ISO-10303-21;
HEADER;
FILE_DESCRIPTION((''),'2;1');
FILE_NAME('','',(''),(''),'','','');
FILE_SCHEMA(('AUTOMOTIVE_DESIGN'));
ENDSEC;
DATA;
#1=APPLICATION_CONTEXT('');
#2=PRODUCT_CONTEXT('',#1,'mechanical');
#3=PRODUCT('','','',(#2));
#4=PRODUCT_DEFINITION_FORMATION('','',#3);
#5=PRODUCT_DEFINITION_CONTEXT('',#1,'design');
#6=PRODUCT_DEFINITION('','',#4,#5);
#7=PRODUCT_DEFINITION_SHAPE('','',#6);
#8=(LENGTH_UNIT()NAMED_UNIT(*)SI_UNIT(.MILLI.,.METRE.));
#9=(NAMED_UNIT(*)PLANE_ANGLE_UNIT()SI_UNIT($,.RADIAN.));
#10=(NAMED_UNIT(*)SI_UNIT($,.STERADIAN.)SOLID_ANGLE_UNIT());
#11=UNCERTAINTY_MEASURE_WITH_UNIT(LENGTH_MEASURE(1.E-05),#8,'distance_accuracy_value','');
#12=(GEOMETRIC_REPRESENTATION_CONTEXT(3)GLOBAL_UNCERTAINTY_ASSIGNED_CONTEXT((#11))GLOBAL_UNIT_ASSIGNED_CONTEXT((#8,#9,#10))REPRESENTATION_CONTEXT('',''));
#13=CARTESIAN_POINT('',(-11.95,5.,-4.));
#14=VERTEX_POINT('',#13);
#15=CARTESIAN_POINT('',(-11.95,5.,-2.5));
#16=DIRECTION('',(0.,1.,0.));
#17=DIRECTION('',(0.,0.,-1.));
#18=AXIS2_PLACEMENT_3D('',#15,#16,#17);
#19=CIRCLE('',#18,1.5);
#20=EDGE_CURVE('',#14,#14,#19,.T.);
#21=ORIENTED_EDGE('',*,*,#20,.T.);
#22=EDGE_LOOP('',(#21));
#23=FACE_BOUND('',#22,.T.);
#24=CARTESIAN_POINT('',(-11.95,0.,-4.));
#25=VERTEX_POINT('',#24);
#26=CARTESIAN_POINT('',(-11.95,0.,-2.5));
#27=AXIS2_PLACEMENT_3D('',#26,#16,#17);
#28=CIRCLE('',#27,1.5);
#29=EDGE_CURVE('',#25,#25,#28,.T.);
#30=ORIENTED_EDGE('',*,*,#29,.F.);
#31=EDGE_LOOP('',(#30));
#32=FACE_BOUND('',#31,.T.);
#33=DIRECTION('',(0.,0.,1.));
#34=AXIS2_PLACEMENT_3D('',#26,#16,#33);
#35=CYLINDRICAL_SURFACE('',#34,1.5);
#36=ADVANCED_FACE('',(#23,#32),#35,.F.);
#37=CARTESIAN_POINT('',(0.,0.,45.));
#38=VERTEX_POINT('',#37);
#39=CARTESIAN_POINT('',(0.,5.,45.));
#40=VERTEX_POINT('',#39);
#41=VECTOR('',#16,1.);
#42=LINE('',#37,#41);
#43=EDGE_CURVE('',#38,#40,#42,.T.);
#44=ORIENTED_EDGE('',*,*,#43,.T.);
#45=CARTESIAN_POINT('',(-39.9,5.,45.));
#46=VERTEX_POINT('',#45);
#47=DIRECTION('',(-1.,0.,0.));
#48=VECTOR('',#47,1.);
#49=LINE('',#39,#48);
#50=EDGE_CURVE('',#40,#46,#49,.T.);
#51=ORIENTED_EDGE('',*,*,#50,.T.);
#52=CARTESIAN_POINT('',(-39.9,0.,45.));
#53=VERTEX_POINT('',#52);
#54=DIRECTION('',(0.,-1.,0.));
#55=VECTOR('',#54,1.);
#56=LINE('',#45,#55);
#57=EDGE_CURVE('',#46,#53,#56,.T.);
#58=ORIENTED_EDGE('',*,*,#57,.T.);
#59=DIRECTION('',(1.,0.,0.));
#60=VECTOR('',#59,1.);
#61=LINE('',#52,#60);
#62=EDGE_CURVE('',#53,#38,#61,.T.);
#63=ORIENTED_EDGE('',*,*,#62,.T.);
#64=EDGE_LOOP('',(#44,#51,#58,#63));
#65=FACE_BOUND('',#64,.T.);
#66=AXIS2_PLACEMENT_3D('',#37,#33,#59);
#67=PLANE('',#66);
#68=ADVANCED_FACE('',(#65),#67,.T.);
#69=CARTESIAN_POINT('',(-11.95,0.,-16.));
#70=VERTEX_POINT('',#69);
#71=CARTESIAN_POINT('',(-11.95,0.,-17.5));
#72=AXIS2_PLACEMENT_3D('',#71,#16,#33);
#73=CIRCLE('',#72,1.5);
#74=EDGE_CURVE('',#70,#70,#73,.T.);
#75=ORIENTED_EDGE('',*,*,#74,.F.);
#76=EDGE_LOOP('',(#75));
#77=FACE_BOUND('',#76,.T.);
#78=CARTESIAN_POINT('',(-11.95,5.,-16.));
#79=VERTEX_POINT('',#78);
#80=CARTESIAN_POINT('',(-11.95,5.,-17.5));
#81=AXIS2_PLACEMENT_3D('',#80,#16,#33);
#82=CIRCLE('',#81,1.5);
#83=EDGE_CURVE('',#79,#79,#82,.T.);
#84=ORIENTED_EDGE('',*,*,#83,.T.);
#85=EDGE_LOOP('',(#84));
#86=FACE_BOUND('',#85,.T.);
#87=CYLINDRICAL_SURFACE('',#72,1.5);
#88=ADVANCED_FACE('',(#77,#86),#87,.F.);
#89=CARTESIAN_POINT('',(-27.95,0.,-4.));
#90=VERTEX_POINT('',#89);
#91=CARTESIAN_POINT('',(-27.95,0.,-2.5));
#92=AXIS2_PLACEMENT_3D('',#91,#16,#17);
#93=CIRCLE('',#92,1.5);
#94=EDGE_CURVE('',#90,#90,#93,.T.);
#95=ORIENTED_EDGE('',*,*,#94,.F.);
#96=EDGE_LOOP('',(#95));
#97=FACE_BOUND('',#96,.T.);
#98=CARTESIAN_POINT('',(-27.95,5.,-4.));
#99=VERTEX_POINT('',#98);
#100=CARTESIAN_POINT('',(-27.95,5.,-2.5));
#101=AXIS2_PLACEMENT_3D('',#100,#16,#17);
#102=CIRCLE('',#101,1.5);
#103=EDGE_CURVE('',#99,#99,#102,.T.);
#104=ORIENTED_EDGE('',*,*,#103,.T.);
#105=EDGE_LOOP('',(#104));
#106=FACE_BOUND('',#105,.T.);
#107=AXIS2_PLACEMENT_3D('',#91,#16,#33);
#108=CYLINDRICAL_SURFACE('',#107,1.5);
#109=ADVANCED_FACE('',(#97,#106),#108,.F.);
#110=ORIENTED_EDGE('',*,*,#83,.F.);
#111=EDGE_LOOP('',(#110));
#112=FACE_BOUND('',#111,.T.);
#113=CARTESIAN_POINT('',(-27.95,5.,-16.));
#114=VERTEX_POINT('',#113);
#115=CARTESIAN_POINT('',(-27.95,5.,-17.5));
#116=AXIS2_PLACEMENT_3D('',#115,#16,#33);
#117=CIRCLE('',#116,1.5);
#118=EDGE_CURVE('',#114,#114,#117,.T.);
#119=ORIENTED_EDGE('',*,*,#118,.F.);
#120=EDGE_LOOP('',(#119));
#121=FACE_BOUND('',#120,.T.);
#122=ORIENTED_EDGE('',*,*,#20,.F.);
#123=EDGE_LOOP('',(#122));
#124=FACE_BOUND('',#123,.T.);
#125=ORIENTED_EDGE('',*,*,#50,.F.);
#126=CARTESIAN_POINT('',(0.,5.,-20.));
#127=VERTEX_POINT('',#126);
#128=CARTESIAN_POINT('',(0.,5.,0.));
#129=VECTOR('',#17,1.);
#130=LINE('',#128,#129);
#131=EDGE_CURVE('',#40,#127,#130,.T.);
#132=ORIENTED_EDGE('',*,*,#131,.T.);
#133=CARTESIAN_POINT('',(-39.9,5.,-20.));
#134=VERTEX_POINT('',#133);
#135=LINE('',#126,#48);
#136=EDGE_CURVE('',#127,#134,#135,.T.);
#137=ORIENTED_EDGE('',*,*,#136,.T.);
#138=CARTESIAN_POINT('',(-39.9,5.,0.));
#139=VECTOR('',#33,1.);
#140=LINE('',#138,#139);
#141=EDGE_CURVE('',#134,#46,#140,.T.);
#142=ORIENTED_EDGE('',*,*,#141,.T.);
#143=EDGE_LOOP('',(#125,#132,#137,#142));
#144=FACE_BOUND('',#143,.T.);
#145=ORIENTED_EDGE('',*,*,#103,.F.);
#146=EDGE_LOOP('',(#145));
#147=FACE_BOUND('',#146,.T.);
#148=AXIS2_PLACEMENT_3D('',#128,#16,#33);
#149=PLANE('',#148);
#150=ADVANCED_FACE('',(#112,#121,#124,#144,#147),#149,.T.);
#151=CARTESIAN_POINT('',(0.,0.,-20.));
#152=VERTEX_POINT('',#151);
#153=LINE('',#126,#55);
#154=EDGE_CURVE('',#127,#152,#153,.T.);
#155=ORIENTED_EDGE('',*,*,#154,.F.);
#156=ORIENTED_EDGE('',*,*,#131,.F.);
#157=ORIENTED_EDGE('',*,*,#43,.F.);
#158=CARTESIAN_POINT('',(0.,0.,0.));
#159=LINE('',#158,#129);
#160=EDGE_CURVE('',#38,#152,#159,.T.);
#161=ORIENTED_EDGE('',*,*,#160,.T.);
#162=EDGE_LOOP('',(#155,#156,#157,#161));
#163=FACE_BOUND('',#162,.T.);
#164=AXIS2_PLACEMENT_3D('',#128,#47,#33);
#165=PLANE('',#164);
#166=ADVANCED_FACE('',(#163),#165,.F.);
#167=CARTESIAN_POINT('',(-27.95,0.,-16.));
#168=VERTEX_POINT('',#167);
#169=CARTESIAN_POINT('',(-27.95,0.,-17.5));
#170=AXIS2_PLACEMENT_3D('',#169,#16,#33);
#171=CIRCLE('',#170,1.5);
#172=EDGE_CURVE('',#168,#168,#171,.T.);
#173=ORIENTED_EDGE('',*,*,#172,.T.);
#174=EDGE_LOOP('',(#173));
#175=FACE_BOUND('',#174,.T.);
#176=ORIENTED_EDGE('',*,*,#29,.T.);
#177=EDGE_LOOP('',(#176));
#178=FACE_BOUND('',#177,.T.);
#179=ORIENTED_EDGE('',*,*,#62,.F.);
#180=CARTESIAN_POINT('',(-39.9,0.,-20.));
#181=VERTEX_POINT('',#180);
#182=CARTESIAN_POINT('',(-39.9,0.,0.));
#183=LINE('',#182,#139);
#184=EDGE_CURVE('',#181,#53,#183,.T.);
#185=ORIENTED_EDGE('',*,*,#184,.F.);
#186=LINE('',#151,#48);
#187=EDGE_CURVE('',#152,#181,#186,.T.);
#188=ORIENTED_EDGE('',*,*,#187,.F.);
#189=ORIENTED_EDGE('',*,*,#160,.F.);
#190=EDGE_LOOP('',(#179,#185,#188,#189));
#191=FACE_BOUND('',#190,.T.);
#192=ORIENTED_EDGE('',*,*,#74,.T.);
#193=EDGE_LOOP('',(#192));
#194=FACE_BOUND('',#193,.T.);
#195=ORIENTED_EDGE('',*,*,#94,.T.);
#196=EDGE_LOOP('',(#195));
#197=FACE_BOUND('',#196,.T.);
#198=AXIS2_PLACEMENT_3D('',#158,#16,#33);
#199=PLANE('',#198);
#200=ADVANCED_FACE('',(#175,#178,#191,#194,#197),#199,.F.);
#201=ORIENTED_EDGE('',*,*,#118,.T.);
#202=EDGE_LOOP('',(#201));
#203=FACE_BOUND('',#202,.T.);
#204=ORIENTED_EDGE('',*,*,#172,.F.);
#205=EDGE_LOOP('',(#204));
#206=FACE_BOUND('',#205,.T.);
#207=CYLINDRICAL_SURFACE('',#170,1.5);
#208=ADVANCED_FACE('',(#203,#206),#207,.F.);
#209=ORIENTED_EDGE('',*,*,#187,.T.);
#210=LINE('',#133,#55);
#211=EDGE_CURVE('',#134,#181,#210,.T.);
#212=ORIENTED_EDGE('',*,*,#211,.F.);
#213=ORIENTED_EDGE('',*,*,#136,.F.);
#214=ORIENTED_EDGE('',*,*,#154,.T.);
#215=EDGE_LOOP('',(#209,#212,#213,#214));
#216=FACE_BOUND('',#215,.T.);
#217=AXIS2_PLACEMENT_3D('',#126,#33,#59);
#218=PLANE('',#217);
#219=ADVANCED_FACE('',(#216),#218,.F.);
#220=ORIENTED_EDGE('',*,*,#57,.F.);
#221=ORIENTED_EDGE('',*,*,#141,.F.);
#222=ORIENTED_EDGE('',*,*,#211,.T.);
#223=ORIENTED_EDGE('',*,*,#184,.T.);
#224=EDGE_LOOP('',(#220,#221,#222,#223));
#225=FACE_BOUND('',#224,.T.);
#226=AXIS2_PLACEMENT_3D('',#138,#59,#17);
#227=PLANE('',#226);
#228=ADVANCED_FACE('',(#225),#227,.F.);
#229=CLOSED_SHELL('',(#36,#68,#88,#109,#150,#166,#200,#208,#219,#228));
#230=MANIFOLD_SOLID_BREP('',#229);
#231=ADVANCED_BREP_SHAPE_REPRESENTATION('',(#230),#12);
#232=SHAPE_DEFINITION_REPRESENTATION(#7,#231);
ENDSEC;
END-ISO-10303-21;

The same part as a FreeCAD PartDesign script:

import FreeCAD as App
import Part
import Sketcher
from FreeCAD import Vector
Q = App.Units.Quantity


def add_polygon(sketch, points):
    """Adds a closed chain of lines whose ends are joined by coincident constraints."""
    first, n = sketch.GeometryCount, len(points)
    for a, b in zip(points, points[1:] + points[:1]):
        sketch.addGeometry(Part.LineSegment(App.Vector(*a, 0), App.Vector(*b, 0)), False)
    for i in range(n):
        sketch.addConstraint(Sketcher.Constraint("Coincident", first + i, 2, first + (i + 1) % n, 1))

doc = App.newDocument("Part")
body = doc.addObject("PartDesign::Body", "Body")

# Sketch on XZ plane
sketch1 = body.newObject("Sketcher::SketchObject", "Sketch")
sketch1.AttachmentSupport = (doc.getObject("XZ_Plane"), [""])
sketch1.MapMode = "FlatFace"
add_polygon(sketch1, [(-40, -20), (-40, 0), (0, 0), (0, -20)])  # lines 0-3
sketch1.addConstraint(Sketcher.Constraint("Vertical", 0))
sketch1.addConstraint(Sketcher.Constraint("Horizontal", 1))
sketch1.addConstraint(Sketcher.Constraint("Vertical", 2))
sketch1.addConstraint(Sketcher.Constraint("Horizontal", 3))
sketch1.addConstraint(Sketcher.Constraint("Coincident", 1, 2, -1, 1))
sketch1.addConstraint(Sketcher.Constraint("DistanceY", 0, 1, 0, 2, Q("20 mm")))
sketch1.addConstraint(Sketcher.Constraint("DistanceX", 1, 1, 1, 2, Q("39.9 mm")))
pad1 = body.newObject("PartDesign::Pad", "Pad")
pad1.Profile = sketch1
pad1.Length = 5
pad1.Reversed = True

# Sketch on XZ plane
sketch2 = body.newObject("Sketcher::SketchObject", "Sketch001")
sketch2.AttachmentSupport = (doc.getObject("XZ_Plane"), [""])
sketch2.MapMode = "FlatFace"
sketch2.AttachmentOffset = App.Placement(Vector(0, 0, -5), App.Rotation())
sketch2.addGeometry(Part.Circle(Vector(-27.9, -17.5, 0), Vector(0, 0, 1), 1.5), False)
sketch2.addGeometry(Part.Circle(Vector(-11.9, -17.5, 0), Vector(0, 0, 1), 1.5), False)
sketch2.addGeometry(Part.Circle(Vector(-11.9, -2.5, 0), Vector(0, 0, 1), 1.5), False)
sketch2.addGeometry(Part.Circle(Vector(-27.9, -2.5, 0), Vector(0, 0, 1), 1.5), False)
sketch2.addConstraint(Sketcher.Constraint("Equal", 0, 1))
sketch2.addConstraint(Sketcher.Constraint("Equal", 1, 2))
sketch2.addConstraint(Sketcher.Constraint("Equal", 2, 3))
sketch2.addConstraint(Sketcher.Constraint("Horizontal", 0, 3, 1, 3))
sketch2.addConstraint(Sketcher.Constraint("Horizontal", 2, 3, 3, 3))
sketch2.addConstraint(Sketcher.Constraint("Vertical", 1, 3, 2, 3))
sketch2.addConstraint(Sketcher.Constraint("Vertical", 0, 3, 3, 3))
sketch2.addConstraint(Sketcher.Constraint("Diameter", 0, Q("3 mm")))
sketch2.addConstraint(Sketcher.Constraint("DistanceX", 0, 3, 1, 3, Q("16 mm")))
sketch2.addConstraint(Sketcher.Constraint("DistanceY", 1, 3, 2, 3, Q("15 mm")))
sketch2.addConstraint(Sketcher.Constraint("DistanceY", 0, 3, -1, 1, Q("17.5 mm")))
sketch2.addConstraint(Sketcher.Constraint("DistanceX", 0, 3, -1, 1, Q("27.95 mm")))
pocket1 = body.newObject("PartDesign::Pocket", "Pocket")
pocket1.Profile = sketch2
pocket1.Length = 5
pocket1.Reversed = True

# Sketch on XY plane
sketch3 = body.newObject("Sketcher::SketchObject", "Sketch002")
sketch3.AttachmentSupport = (doc.getObject("XY_Plane"), [""])
sketch3.MapMode = "FlatFace"
add_polygon(sketch3, [(-40, 5), (-40, 0), (0, 0), (0, 5)])  # lines 0-3
sketch3.addConstraint(Sketcher.Constraint("Vertical", 0))
sketch3.addConstraint(Sketcher.Constraint("Horizontal", 1))
sketch3.addConstraint(Sketcher.Constraint("Vertical", 2))
sketch3.addConstraint(Sketcher.Constraint("Horizontal", 3))
sketch3.addConstraint(Sketcher.Constraint("Coincident", 1, 2, -1, 1))
sketch3.addConstraint(Sketcher.Constraint("DistanceY", 0, 2, 0, 1, Q("5 mm")))
sketch3.addConstraint(Sketcher.Constraint("DistanceX", 1, 1, 1, 2, Q("39.9 mm")))
pad2 = body.newObject("PartDesign::Pad", "Pad001")
pad2.Profile = sketch3
pad2.Length = 45

doc.recompute()
